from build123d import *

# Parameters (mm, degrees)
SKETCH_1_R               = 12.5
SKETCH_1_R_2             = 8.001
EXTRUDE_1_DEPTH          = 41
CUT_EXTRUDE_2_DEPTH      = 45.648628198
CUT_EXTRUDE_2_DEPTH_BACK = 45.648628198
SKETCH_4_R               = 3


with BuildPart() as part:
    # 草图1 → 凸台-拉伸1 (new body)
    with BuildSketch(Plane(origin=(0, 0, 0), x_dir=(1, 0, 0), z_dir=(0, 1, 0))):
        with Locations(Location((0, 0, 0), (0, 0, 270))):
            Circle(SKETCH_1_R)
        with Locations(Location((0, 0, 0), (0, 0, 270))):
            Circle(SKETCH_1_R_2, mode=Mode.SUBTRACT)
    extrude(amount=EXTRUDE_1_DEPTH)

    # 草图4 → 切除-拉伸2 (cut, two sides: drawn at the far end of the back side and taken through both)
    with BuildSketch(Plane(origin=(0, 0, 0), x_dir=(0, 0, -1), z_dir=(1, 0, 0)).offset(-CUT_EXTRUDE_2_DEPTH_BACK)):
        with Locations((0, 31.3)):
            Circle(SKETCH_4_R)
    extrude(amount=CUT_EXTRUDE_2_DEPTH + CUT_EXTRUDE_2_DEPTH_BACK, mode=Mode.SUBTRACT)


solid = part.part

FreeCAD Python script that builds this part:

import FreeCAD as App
import Part
import Sketcher
from FreeCAD import Vector

doc = App.newDocument("Part")
params = doc.addObject("Spreadsheet::Sheet", "Params")
for row, (alias, value) in enumerate([
    ("sketch1_diameter", "25 mm"),
    ("pad1_length", "41 mm"),
    ("sketch2_diameter", "6 mm"),
], start=1):
    params.set(f"A{row}", alias)
    params.set(f"B{row}", "=" + value)
    params.setAlias(f"B{row}", alias)

body = doc.addObject("PartDesign::Body", "Body")

# Sketch on XZ plane
sketch1 = body.newObject("Sketcher::SketchObject", "Sketch")
sketch1.AttachmentSupport = (doc.getObject("XZ_Plane"), [""])
sketch1.MapMode = "FlatFace"
sketch1.addGeometry(Part.Circle(Vector(0, 0, 0), Vector(0, 0, 1), 12.5), False)
sketch1.addGeometry(Part.Circle(Vector(0, 0, 0), Vector(0, 0, 1), 8.001), False)
sketch1.addConstraint(Sketcher.Constraint("Coincident", 0, 3, -1, 1))
sketch1.addConstraint(Sketcher.Constraint("Coincident", 1, 3, -1, 1))
sketch1.addConstraint(Sketcher.Constraint("Diameter", 0, 25.0))
sketch1.addConstraint(Sketcher.Constraint("Diameter", 1, 16.002))
sketch1.setExpression("Constraints[2]", "Params.sketch1_diameter")
pad1 = body.newObject("PartDesign::Pad", "Pad")
pad1.Profile = sketch1
pad1.setExpression("Length", "Params.pad1_length")
pad1.Reversed = True

# Sketch on YZ plane
sketch2 = body.newObject("Sketcher::SketchObject", "Sketch001")
sketch2.AttachmentSupport = (doc.getObject("YZ_Plane"), [""])
sketch2.MapMode = "FlatFace"
sketch2.addGeometry(Part.Circle(Vector(31.3, 0, 0), Vector(0, 0, 1), 3), False)
sketch2.addConstraint(Sketcher.Constraint("PointOnObject", 0, 3, -1))
sketch2.addConstraint(Sketcher.Constraint("Diameter", 0, 6.0))
sketch2.addConstraint(Sketcher.Constraint("DistanceX", -1, 1, 0, 3, 31.3))
sketch2.setExpression("Constraints[1]", "Params.sketch2_diameter")
pocket1 = body.newObject("PartDesign::Pocket", "Pocket")
pocket1.Profile = sketch2
pocket1.Type = "ThroughAll"
pocket1.Midplane = True

doc.recompute()
